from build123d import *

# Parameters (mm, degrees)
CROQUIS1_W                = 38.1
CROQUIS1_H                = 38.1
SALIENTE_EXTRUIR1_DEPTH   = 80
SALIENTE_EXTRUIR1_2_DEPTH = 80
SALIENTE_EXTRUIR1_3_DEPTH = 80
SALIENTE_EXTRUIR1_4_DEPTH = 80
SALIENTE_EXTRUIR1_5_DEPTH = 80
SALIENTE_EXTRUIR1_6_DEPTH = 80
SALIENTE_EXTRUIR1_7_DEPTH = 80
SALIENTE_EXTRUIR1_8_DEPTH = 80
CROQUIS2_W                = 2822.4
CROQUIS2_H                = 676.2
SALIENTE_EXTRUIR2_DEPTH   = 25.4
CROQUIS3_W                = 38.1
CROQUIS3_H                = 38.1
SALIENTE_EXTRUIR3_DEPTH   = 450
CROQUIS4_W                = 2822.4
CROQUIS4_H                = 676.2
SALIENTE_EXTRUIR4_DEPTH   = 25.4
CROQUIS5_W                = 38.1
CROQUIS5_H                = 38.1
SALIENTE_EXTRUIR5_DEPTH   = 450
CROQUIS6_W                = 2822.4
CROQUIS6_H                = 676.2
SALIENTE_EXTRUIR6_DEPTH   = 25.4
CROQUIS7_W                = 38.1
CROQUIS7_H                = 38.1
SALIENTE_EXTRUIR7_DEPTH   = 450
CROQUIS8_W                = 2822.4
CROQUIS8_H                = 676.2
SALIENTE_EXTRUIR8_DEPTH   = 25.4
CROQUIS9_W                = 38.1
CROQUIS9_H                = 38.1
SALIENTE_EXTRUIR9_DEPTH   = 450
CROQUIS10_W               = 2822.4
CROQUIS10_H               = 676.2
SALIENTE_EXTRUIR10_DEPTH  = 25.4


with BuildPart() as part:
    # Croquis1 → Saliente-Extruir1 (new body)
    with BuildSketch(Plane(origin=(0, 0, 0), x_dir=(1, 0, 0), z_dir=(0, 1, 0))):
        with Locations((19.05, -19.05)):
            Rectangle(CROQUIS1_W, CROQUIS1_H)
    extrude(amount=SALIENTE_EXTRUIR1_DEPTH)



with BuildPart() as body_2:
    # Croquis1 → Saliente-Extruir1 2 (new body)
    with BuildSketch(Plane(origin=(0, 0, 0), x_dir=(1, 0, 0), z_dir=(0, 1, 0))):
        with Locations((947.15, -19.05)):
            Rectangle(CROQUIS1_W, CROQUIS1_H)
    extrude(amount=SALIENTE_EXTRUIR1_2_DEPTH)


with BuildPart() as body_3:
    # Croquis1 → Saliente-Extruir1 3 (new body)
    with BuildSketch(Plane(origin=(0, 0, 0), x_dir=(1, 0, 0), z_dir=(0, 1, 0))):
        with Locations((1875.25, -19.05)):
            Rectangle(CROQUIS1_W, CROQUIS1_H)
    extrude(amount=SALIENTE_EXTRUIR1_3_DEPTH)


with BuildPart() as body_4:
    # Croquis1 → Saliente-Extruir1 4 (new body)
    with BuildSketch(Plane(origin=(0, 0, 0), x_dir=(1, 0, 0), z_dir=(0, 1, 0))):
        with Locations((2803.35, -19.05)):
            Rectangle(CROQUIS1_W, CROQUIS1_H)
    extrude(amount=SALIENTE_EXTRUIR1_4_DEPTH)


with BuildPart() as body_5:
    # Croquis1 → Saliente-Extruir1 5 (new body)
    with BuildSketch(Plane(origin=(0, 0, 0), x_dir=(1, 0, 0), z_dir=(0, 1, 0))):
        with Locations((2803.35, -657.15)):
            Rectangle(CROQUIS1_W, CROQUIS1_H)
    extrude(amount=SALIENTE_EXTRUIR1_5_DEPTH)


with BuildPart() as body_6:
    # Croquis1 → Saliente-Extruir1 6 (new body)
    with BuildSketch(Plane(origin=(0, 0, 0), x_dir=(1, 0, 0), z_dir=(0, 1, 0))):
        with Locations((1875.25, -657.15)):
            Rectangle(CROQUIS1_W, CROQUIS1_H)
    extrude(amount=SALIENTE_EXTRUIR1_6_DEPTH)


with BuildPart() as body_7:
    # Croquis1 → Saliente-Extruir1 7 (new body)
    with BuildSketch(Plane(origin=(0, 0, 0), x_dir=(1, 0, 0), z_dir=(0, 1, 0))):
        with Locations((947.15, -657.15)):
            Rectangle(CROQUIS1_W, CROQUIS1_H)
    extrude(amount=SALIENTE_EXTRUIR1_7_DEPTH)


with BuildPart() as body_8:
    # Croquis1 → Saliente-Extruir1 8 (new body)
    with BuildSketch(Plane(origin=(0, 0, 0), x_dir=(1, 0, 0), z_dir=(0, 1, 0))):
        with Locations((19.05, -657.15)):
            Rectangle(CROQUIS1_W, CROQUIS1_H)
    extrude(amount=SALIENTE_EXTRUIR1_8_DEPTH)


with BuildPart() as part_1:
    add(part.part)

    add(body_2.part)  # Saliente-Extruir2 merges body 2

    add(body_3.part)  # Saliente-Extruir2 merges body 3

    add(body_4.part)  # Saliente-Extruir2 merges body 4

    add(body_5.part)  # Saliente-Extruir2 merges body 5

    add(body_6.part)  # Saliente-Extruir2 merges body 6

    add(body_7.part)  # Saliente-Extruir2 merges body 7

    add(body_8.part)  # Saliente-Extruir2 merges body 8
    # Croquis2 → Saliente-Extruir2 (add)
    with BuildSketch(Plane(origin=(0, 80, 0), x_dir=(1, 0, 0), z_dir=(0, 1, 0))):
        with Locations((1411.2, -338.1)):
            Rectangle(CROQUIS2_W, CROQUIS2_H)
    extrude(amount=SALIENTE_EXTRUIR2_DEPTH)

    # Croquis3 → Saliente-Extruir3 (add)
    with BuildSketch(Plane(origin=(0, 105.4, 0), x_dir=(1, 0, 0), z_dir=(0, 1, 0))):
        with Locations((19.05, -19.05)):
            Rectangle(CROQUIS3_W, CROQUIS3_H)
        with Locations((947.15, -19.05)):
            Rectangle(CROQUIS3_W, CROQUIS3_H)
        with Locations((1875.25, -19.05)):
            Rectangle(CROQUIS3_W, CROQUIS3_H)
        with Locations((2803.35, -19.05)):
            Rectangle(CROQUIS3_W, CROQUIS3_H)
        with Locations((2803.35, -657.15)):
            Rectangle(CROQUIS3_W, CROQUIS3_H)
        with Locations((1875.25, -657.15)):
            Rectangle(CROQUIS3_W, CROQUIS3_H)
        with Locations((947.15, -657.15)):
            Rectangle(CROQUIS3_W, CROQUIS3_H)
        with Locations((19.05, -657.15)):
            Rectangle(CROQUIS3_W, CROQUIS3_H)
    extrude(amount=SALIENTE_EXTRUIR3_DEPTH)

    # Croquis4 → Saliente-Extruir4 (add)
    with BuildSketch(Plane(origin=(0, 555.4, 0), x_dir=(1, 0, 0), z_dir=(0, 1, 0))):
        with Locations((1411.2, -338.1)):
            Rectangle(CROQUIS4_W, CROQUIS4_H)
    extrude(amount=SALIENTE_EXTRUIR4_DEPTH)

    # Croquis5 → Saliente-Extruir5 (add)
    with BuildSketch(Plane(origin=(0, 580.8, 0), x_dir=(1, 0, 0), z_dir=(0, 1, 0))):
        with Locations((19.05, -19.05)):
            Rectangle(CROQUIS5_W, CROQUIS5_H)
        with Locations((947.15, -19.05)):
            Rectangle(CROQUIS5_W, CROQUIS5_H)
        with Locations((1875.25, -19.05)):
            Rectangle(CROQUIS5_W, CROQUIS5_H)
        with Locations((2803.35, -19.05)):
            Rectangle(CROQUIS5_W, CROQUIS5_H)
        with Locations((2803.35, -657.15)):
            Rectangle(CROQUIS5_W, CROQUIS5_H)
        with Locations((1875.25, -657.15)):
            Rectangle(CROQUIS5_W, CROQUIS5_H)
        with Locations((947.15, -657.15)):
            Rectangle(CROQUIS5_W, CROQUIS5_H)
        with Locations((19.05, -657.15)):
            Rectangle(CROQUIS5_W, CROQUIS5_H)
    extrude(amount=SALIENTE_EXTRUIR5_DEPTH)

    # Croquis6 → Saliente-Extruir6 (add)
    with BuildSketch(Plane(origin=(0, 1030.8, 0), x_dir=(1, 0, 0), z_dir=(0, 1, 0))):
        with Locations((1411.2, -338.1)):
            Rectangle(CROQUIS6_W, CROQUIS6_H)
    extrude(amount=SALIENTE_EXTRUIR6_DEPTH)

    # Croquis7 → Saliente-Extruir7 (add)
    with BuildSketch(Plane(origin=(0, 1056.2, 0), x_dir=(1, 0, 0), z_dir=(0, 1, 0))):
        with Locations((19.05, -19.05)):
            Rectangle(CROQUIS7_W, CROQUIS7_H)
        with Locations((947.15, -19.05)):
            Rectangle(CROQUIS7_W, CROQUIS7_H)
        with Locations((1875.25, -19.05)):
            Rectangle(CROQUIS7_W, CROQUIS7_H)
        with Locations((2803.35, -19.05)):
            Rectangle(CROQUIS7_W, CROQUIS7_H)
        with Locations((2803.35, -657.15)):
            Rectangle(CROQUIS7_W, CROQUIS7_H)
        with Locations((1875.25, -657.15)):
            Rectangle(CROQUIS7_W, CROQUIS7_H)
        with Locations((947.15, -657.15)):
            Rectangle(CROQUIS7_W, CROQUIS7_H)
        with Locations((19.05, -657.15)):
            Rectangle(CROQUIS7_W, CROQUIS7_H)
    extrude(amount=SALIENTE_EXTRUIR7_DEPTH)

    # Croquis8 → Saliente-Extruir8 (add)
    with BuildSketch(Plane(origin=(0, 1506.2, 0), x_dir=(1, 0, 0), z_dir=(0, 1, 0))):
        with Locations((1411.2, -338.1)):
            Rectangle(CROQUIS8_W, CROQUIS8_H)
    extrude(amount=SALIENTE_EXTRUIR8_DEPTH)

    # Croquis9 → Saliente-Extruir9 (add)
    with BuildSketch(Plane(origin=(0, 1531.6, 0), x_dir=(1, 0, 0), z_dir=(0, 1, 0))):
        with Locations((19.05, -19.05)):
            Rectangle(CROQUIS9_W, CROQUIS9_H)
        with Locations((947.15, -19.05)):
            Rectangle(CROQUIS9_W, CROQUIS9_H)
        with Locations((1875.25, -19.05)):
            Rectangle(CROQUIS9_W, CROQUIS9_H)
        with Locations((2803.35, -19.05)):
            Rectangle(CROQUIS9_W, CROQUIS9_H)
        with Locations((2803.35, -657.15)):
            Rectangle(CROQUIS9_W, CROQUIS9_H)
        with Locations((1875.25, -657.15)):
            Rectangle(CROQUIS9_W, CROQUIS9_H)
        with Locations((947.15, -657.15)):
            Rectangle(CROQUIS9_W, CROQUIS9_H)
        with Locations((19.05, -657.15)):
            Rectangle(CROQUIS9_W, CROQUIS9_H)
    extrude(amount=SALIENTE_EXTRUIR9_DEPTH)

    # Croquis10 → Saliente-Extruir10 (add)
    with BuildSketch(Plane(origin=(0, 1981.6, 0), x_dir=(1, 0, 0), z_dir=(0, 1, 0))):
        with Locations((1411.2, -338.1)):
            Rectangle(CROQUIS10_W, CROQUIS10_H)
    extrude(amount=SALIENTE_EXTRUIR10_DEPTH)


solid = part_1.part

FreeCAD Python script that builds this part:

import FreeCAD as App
import Part
import Sketcher

V = App.Vector


def add_polygon(sketch, points):
    """Adds a closed chain of lines whose ends are joined by coincident constraints."""
    first, n = sketch.GeometryCount, len(points)
    for a, b in zip(points, points[1:] + points[:1]):
        sketch.addGeometry(Part.LineSegment(App.Vector(*a, 0), App.Vector(*b, 0)), False)
    for i in range(n):
        sketch.addConstraint(Sketcher.Constraint("Coincident", first + i, 2, first + (i + 1) % n, 1))

doc = App.newDocument("Part")
body = doc.addObject("PartDesign::Body", "Body")

# Sketch on XZ plane
sketch1 = body.newObject("Sketcher::SketchObject", "Sketch")
sketch1.AttachmentSupport = (doc.getObject("XZ_Plane"), [""])
sketch1.MapMode = "FlatFace"
add_polygon(sketch1, [(0, 0), (0, 38), (38, 38), (38, 0)])  # lines 0-3
sketch1.addConstraint(Sketcher.Constraint("Vertical", 0))
sketch1.addConstraint(Sketcher.Constraint("Horizontal", 1))
sketch1.addConstraint(Sketcher.Constraint("Vertical", 2))
sketch1.addConstraint(Sketcher.Constraint("Horizontal", 3))
sketch1.addConstraint(Sketcher.Constraint("Coincident", 3, 2, -1, 1))
sketch1.addConstraint(Sketcher.Constraint("Equal", 3, 0))
sketch1.addConstraint(Sketcher.Constraint("DistanceX", 1, 1, 1, 2, 38.1))
pad1 = body.newObject("PartDesign::Pad", "Pad")
pad1.Profile = sketch1
pad1.Length = 80
pad1.Reversed = True
body2 = doc.addObject("PartDesign::Body", "Body001")

# Sketch on XZ plane
sketch2 = body2.newObject("Sketcher::SketchObject", "Sketch001")
sketch2.AttachmentSupport = (doc.getObject("XZ_Plane001"), [""])
sketch2.MapMode = "FlatFace"
add_polygon(sketch2, [(928, 0), (928, 38), (966, 38), (966, 0)])  # lines 0-3
sketch2.addConstraint(Sketcher.Constraint("Vertical", 0))
sketch2.addConstraint(Sketcher.Constraint("Horizontal", 1))
sketch2.addConstraint(Sketcher.Constraint("Vertical", 2))
sketch2.addConstraint(Sketcher.Constraint("Horizontal", 3))
sketch2.addConstraint(Sketcher.Constraint("PointOnObject", 2, 2, -1))
sketch2.addConstraint(Sketcher.Constraint("Equal", 3, 0))
sketch2.addConstraint(Sketcher.Constraint("DistanceX", 1, 1, 1, 2, 38.1))
sketch2.addConstraint(Sketcher.Constraint("DistanceX", -1, 1, 0, 2, 928.1))
pad2 = body2.newObject("PartDesign::Pad", "Pad001")
pad2.Profile = sketch2
pad2.Length = 80
pad2.Reversed = True
body3 = doc.addObject("PartDesign::Body", "Body002")

# Sketch on XZ plane
sketch3 = body3.newObject("Sketcher::SketchObject", "Sketch002")
sketch3.AttachmentSupport = (doc.getObject("XZ_Plane002"), [""])
sketch3.MapMode = "FlatFace"
add_polygon(sketch3, [(1856, 0), (1856, 38), (1894, 38), (1894, 0)])  # lines 0-3
sketch3.addConstraint(Sketcher.Constraint("Vertical", 0))
sketch3.addConstraint(Sketcher.Constraint("Horizontal", 1))
sketch3.addConstraint(Sketcher.Constraint("Vertical", 2))
sketch3.addConstraint(Sketcher.Constraint("Horizontal", 3))
sketch3.addConstraint(Sketcher.Constraint("PointOnObject", 2, 2, -1))
sketch3.addConstraint(Sketcher.Constraint("Equal", 3, 0))
sketch3.addConstraint(Sketcher.Constraint("DistanceX", 1, 1, 1, 2, 38.1))
sketch3.addConstraint(Sketcher.Constraint("DistanceX", -1, 1, 0, 2, 1856.2))
pad3 = body3.newObject("PartDesign::Pad", "Pad002")
pad3.Profile = sketch3
pad3.Length = 80
pad3.Reversed = True
body4 = doc.addObject("PartDesign::Body", "Body003")

# Sketch on XZ plane
sketch4 = body4.newObject("Sketcher::SketchObject", "Sketch003")
sketch4.AttachmentSupport = (doc.getObject("XZ_Plane003"), [""])
sketch4.MapMode = "FlatFace"
add_polygon(sketch4, [(2784, 0), (2784, 38), (2822, 38), (2822, 0)])  # lines 0-3
sketch4.addConstraint(Sketcher.Constraint("Vertical", 0))
sketch4.addConstraint(Sketcher.Constraint("Horizontal", 1))
sketch4.addConstraint(Sketcher.Constraint("Vertical", 2))
sketch4.addConstraint(Sketcher.Constraint("Horizontal", 3))
sketch4.addConstraint(Sketcher.Constraint("PointOnObject", 2, 2, -1))
sketch4.addConstraint(Sketcher.Constraint("Equal", 3, 0))
sketch4.addConstraint(Sketcher.Constraint("DistanceX", 1, 1, 1, 2, 38.1))
sketch4.addConstraint(Sketcher.Constraint("DistanceX", -1, 1, 0, 2, 2784.3))
pad4 = body4.newObject("PartDesign::Pad", "Pad003")
pad4.Profile = sketch4
pad4.Length = 80
pad4.Reversed = True
body5 = doc.addObject("PartDesign::Body", "Body004")

# Sketch on XZ plane
sketch5 = body5.newObject("Sketcher::SketchObject", "Sketch004")
sketch5.AttachmentSupport = (doc.getObject("XZ_Plane004"), [""])
sketch5.MapMode = "FlatFace"
add_polygon(sketch5, [(2784, 638), (2784, 676), (2822, 676), (2822, 638)])  # lines 0-3
sketch5.addConstraint(Sketcher.Constraint("Vertical", 0))
sketch5.addConstraint(Sketcher.Constraint("Horizontal", 1))
sketch5.addConstraint(Sketcher.Constraint("Vertical", 2))
sketch5.addConstraint(Sketcher.Constraint("Horizontal", 3))
sketch5.addConstraint(Sketcher.Constraint("Equal", 3, 0))
sketch5.addConstraint(Sketcher.Constraint("DistanceX", 1, 1, 1, 2, 38.1))
sketch5.addConstraint(Sketcher.Constraint("DistanceX", -1, 1, 0, 2, 2784.3))
sketch5.addConstraint(Sketcher.Constraint("DistanceY", -1, 1, 0, 2, 676.2))
pad5 = body5.newObject("PartDesign::Pad", "Pad004")
pad5.Profile = sketch5
pad5.Length = 80
pad5.Reversed = True
body6 = doc.addObject("PartDesign::Body", "Body005")

# Sketch on XZ plane
sketch6 = body6.newObject("Sketcher::SketchObject", "Sketch005")
sketch6.AttachmentSupport = (doc.getObject("XZ_Plane005"), [""])
sketch6.MapMode = "FlatFace"
add_polygon(sketch6, [(1856, 638), (1856, 676), (1894, 676), (1894, 638)])  # lines 0-3
sketch6.addConstraint(Sketcher.Constraint("Vertical", 0))
sketch6.addConstraint(Sketcher.Constraint("Horizontal", 1))
sketch6.addConstraint(Sketcher.Constraint("Vertical", 2))
sketch6.addConstraint(Sketcher.Constraint("Horizontal", 3))
sketch6.addConstraint(Sketcher.Constraint("Equal", 3, 0))
sketch6.addConstraint(Sketcher.Constraint("DistanceX", 1, 1, 1, 2, 38.1))
sketch6.addConstraint(Sketcher.Constraint("DistanceX", -1, 1, 0, 2, 1856.2))
sketch6.addConstraint(Sketcher.Constraint("DistanceY", -1, 1, 0, 2, 676.2))
pad6 = body6.newObject("PartDesign::Pad", "Pad005")
pad6.Profile = sketch6
pad6.Length = 80
pad6.Reversed = True
body7 = doc.addObject("PartDesign::Body", "Body006")

# Sketch on XZ plane
sketch7 = body7.newObject("Sketcher::SketchObject", "Sketch006")
sketch7.AttachmentSupport = (doc.getObject("XZ_Plane006"), [""])
sketch7.MapMode = "FlatFace"
add_polygon(sketch7, [(928, 638), (928, 676), (966, 676), (966, 638)])  # lines 0-3
sketch7.addConstraint(Sketcher.Constraint("Vertical", 0))
sketch7.addConstraint(Sketcher.Constraint("Horizontal", 1))
sketch7.addConstraint(Sketcher.Constraint("Vertical", 2))
sketch7.addConstraint(Sketcher.Constraint("Horizontal", 3))
sketch7.addConstraint(Sketcher.Constraint("Equal", 3, 0))
sketch7.addConstraint(Sketcher.Constraint("DistanceX", 1, 1, 1, 2, 38.1))
sketch7.addConstraint(Sketcher.Constraint("DistanceX", -1, 1, 0, 2, 928.1))
sketch7.addConstraint(Sketcher.Constraint("DistanceY", -1, 1, 0, 2, 676.2))
pad7 = body7.newObject("PartDesign::Pad", "Pad006")
pad7.Profile = sketch7
pad7.Length = 80
pad7.Reversed = True
body8 = doc.addObject("PartDesign::Body", "Body007")

# Sketch on XZ plane
sketch8 = body8.newObject("Sketcher::SketchObject", "Sketch007")
sketch8.AttachmentSupport = (doc.getObject("XZ_Plane007"), [""])
sketch8.MapMode = "FlatFace"
add_polygon(sketch8, [(0, 638), (0, 676), (38, 676), (38, 638)])  # lines 0-3
sketch8.addConstraint(Sketcher.Constraint("Vertical", 0))
sketch8.addConstraint(Sketcher.Constraint("Horizontal", 1))
sketch8.addConstraint(Sketcher.Constraint("Vertical", 2))
sketch8.addConstraint(Sketcher.Constraint("Horizontal", 3))
sketch8.addConstraint(Sketcher.Constraint("PointOnObject", 0, 2, -2))
sketch8.addConstraint(Sketcher.Constraint("Equal", 3, 0))
sketch8.addConstraint(Sketcher.Constraint("DistanceX", 1, 1, 1, 2, 38.1))
sketch8.addConstraint(Sketcher.Constraint("DistanceY", -1, 1, 0, 2, 676.2))
pad8 = body8.newObject("PartDesign::Pad", "Pad007")
pad8.Profile = sketch8
pad8.Length = 80
pad8.Reversed = True
body.AllowCompound = True
doc.recompute()

boolean = body.newObject("PartDesign::Boolean", "Boolean")
boolean.Type = "Fuse"
boolean.addObjects([body2])
doc.recompute()

boolean2 = body.newObject("PartDesign::Boolean", "Boolean001")
boolean2.Type = "Fuse"
boolean2.addObjects([body3])
doc.recompute()

boolean3 = body.newObject("PartDesign::Boolean", "Boolean002")
boolean3.Type = "Fuse"
boolean3.addObjects([body4])
doc.recompute()

boolean4 = body.newObject("PartDesign::Boolean", "Boolean003")
boolean4.Type = "Fuse"
boolean4.addObjects([body5])
doc.recompute()

boolean5 = body.newObject("PartDesign::Boolean", "Boolean004")
boolean5.Type = "Fuse"
boolean5.addObjects([body6])
doc.recompute()

boolean6 = body.newObject("PartDesign::Boolean", "Boolean005")
boolean6.Type = "Fuse"
boolean6.addObjects([body7])
doc.recompute()

boolean7 = body.newObject("PartDesign::Boolean", "Boolean006")
boolean7.Type = "Fuse"
boolean7.addObjects([body8])

# Sketch on XZ plane
sketch9 = body.newObject("Sketcher::SketchObject", "Sketch008")
sketch9.AttachmentSupport = (doc.getObject("XZ_Plane"), [""])
sketch9.MapMode = "FlatFace"
sketch9.AttachmentOffset = App.Placement(V(0, 0, -80), App.Rotation())
add_polygon(sketch9, [(0, 0), (0, 676), (2822, 676), (2822, 0)])  # lines 0-3
sketch9.addConstraint(Sketcher.Constraint("Vertical", 0))
sketch9.addConstraint(Sketcher.Constraint("Horizontal", 1))
sketch9.addConstraint(Sketcher.Constraint("Vertical", 2))
sketch9.addConstraint(Sketcher.Constraint("Horizontal", 3))
sketch9.addConstraint(Sketcher.Constraint("Coincident", 3, 2, -1, 1))
sketch9.addConstraint(Sketcher.Constraint("DistanceX", 1, 1, 1, 2, 2822.4))
sketch9.addConstraint(Sketcher.Constraint("DistanceY", 0, 1, 0, 2, 676.2))
pad9 = body.newObject("PartDesign::Pad", "Pad008")
pad9.Profile = sketch9
pad9.Length = 25.4
pad9.Reversed = True

# Sketch on XZ plane
sketch10 = body.newObject("Sketcher::SketchObject", "Sketch009")
sketch10.AttachmentSupport = (doc.getObject("XZ_Plane"), [""])
sketch10.MapMode = "FlatFace"
sketch10.AttachmentOffset = App.Placement(V(0, 0, -105.4), App.Rotation())
add_polygon(sketch10, [(0, 0), (0, 38), (38, 38), (38, 0)])  # lines 0-3
add_polygon(sketch10, [(928, 0), (928, 38), (966, 38), (966, 0)])  # lines 4-7
add_polygon(sketch10, [(1856, 0), (1856, 38), (1894, 38), (1894, 0)])  # lines 8-11
add_polygon(sketch10, [(2784, 0), (2784, 38), (2822, 38), (2822, 0)])  # lines 12-15
add_polygon(sketch10, [(2784, 638), (2784, 676), (2822, 676), (2822, 638)])  # lines 16-19
add_polygon(sketch10, [(1856, 638), (1856, 676), (1894, 676), (1894, 638)])  # lines 20-23
add_polygon(sketch10, [(928, 638), (928, 676), (966, 676), (966, 638)])  # lines 24-27
add_polygon(sketch10, [(0, 638), (0, 676), (38, 676), (38, 638)])  # lines 28-31
sketch10.addConstraint(Sketcher.Constraint("Vertical", 0))
sketch10.addConstraint(Sketcher.Constraint("Horizontal", 1))
sketch10.addConstraint(Sketcher.Constraint("Vertical", 2))
sketch10.addConstraint(Sketcher.Constraint("Horizontal", 3))
sketch10.addConstraint(Sketcher.Constraint("Vertical", 4))
sketch10.addConstraint(Sketcher.Constraint("Horizontal", 5))
sketch10.addConstraint(Sketcher.Constraint("Vertical", 6))
sketch10.addConstraint(Sketcher.Constraint("Horizontal", 7))
sketch10.addConstraint(Sketcher.Constraint("Vertical", 8))
sketch10.addConstraint(Sketcher.Constraint("Horizontal", 9))
sketch10.addConstraint(Sketcher.Constraint("Vertical", 10))
sketch10.addConstraint(Sketcher.Constraint("Horizontal", 11))
sketch10.addConstraint(Sketcher.Constraint("Vertical", 12))
sketch10.addConstraint(Sketcher.Constraint("Horizontal", 13))
sketch10.addConstraint(Sketcher.Constraint("Vertical", 14))
sketch10.addConstraint(Sketcher.Constraint("Horizontal", 15))
sketch10.addConstraint(Sketcher.Constraint("Vertical", 16))
sketch10.addConstraint(Sketcher.Constraint("Horizontal", 17))
sketch10.addConstraint(Sketcher.Constraint("Vertical", 18))
sketch10.addConstraint(Sketcher.Constraint("Horizontal", 19))
sketch10.addConstraint(Sketcher.Constraint("Vertical", 20))
sketch10.addConstraint(Sketcher.Constraint("Horizontal", 21))
sketch10.addConstraint(Sketcher.Constraint("Vertical", 22))
sketch10.addConstraint(Sketcher.Constraint("Horizontal", 23))
sketch10.addConstraint(Sketcher.Constraint("Vertical", 24))
sketch10.addConstraint(Sketcher.Constraint("Horizontal", 25))
sketch10.addConstraint(Sketcher.Constraint("Vertical", 26))
sketch10.addConstraint(Sketcher.Constraint("Horizontal", 27))
sketch10.addConstraint(Sketcher.Constraint("Vertical", 28))
sketch10.addConstraint(Sketcher.Constraint("Horizontal", 29))
sketch10.addConstraint(Sketcher.Constraint("Vertical", 30))
sketch10.addConstraint(Sketcher.Constraint("Horizontal", 31))
sketch10.addConstraint(Sketcher.Constraint("Coincident", 3, 2, -1, 1))
sketch10.addConstraint(Sketcher.Constraint("PointOnObject", 6, 2, -1))
sketch10.addConstraint(Sketcher.Constraint("PointOnObject", 10, 2, -1))
sketch10.addConstraint(Sketcher.Constraint("PointOnObject", 14, 2, -1))
sketch10.addConstraint(Sketcher.Constraint("PointOnObject", 28, 2, -2))
sketch10.addConstraint(Sketcher.Constraint("Horizontal", 1, 2, 4, 2))
sketch10.addConstraint(Sketcher.Constraint("Horizontal", 5, 2, 8, 2))
sketch10.addConstraint(Sketcher.Constraint("Horizontal", 9, 2, 12, 2))
sketch10.addConstraint(Sketcher.Constraint("Horizontal", 17, 2, 20, 2))
sketch10.addConstraint(Sketcher.Constraint("Horizontal", 19, 2, 22, 2))
sketch10.addConstraint(Sketcher.Constraint("Horizontal", 21, 2, 24, 2))
sketch10.addConstraint(Sketcher.Constraint("Horizontal", 23, 2, 26, 2))
sketch10.addConstraint(Sketcher.Constraint("Horizontal", 25, 2, 28, 2))
sketch10.addConstraint(Sketcher.Constraint("Horizontal", 27, 2, 30, 2))
sketch10.addConstraint(Sketcher.Constraint("Vertical", 15, 2, 16, 2))
sketch10.addConstraint(Sketcher.Constraint("Vertical", 14, 2, 17, 2))
sketch10.addConstraint(Sketcher.Constraint("Vertical", 11, 2, 20, 2))
sketch10.addConstraint(Sketcher.Constraint("Vertical", 10, 2, 21, 2))
sketch10.addConstraint(Sketcher.Constraint("Vertical", 7, 2, 24, 2))
sketch10.addConstraint(Sketcher.Constraint("Vertical", 6, 2, 25, 2))
sketch10.addConstraint(Sketcher.Constraint("Vertical", 2, 2, 29, 2))
sketch10.addConstraint(Sketcher.Constraint("Equal", 3, 5))
sketch10.addConstraint(Sketcher.Constraint("Equal", 7, 9))
sketch10.addConstraint(Sketcher.Constraint("Equal", 11, 13))
sketch10.addConstraint(Sketcher.Constraint("Equal", 31, 0))
sketch10.addConstraint(Sketcher.Constraint("Equal", 14, 16))
sketch10.addConstraint(Sketcher.Constraint("DistanceX", 1, 1, 1, 2, 38.1))
sketch10.addConstraint(Sketcher.Constraint("DistanceX", 1, 2, 4, 2, 890.0))
sketch10.addConstraint(Sketcher.Constraint("DistanceX", 5, 2, 8, 2, 890.0))
sketch10.addConstraint(Sketcher.Constraint("DistanceX", 9, 2, 12, 2, 890.0))
sketch10.addConstraint(Sketcher.Constraint("DistanceY", 13, 2, 18, 2, 600.0))
pad10 = body.newObject("PartDesign::Pad", "Pad009")
pad10.Profile = sketch10
pad10.Length = 450
pad10.Reversed = True

# Sketch on XZ plane
sketch11 = body.newObject("Sketcher::SketchObject", "Sketch010")
sketch11.AttachmentSupport = (doc.getObject("XZ_Plane"), [""])
sketch11.MapMode = "FlatFace"
sketch11.AttachmentOffset = App.Placement(V(0, 0, -555.4), App.Rotation())
add_polygon(sketch11, [(0, 0), (0, 676), (2822, 676), (2822, 0)])  # lines 0-3
sketch11.addConstraint(Sketcher.Constraint("Vertical", 0))
sketch11.addConstraint(Sketcher.Constraint("Horizontal", 1))
sketch11.addConstraint(Sketcher.Constraint("Vertical", 2))
sketch11.addConstraint(Sketcher.Constraint("Horizontal", 3))
sketch11.addConstraint(Sketcher.Constraint("Coincident", 3, 2, -1, 1))
sketch11.addConstraint(Sketcher.Constraint("DistanceX", 1, 1, 1, 2, 2822.4))
sketch11.addConstraint(Sketcher.Constraint("DistanceY", 0, 1, 0, 2, 676.2))
pad11 = body.newObject("PartDesign::Pad", "Pad010")
pad11.Profile = sketch11
pad11.Length = 25.4
pad11.Reversed = True

# Sketch on XZ plane
sketch12 = body.newObject("Sketcher::SketchObject", "Sketch011")
sketch12.AttachmentSupport = (doc.getObject("XZ_Plane"), [""])
sketch12.MapMode = "FlatFace"
sketch12.AttachmentOffset = App.Placement(V(0, 0, -580.8), App.Rotation())
add_polygon(sketch12, [(0, 0), (0, 38), (38, 38), (38, 0)])  # lines 0-3
add_polygon(sketch12, [(928, 0), (928, 38), (966, 38), (966, 0)])  # lines 4-7
add_polygon(sketch12, [(1856, 0), (1856, 38), (1894, 38), (1894, 0)])  # lines 8-11
add_polygon(sketch12, [(2784, 0), (2784, 38), (2822, 38), (2822, 0)])  # lines 12-15
add_polygon(sketch12, [(2784, 638), (2784, 676), (2822, 676), (2822, 638)])  # lines 16-19
add_polygon(sketch12, [(1856, 638), (1856, 676), (1894, 676), (1894, 638)])  # lines 20-23
add_polygon(sketch12, [(928, 638), (928, 676), (966, 676), (966, 638)])  # lines 24-27
add_polygon(sketch12, [(0, 638), (0, 676), (38, 676), (38, 638)])  # lines 28-31
sketch12.addConstraint(Sketcher.Constraint("Vertical", 0))
sketch12.addConstraint(Sketcher.Constraint("Horizontal", 1))
sketch12.addConstraint(Sketcher.Constraint("Vertical", 2))
sketch12.addConstraint(Sketcher.Constraint("Horizontal", 3))
sketch12.addConstraint(Sketcher.Constraint("Vertical", 4))
sketch12.addConstraint(Sketcher.Constraint("Horizontal", 5))
sketch12.addConstraint(Sketcher.Constraint("Vertical", 6))
sketch12.addConstraint(Sketcher.Constraint("Horizontal", 7))
sketch12.addConstraint(Sketcher.Constraint("Vertical", 8))
sketch12.addConstraint(Sketcher.Constraint("Horizontal", 9))
sketch12.addConstraint(Sketcher.Constraint("Vertical", 10))
sketch12.addConstraint(Sketcher.Constraint("Horizontal", 11))
sketch12.addConstraint(Sketcher.Constraint("Vertical", 12))
sketch12.addConstraint(Sketcher.Constraint("Horizontal", 13))
sketch12.addConstraint(Sketcher.Constraint("Vertical", 14))
sketch12.addConstraint(Sketcher.Constraint("Horizontal", 15))
sketch12.addConstraint(Sketcher.Constraint("Vertical", 16))
sketch12.addConstraint(Sketcher.Constraint("Horizontal", 17))
sketch12.addConstraint(Sketcher.Constraint("Vertical", 18))
sketch12.addConstraint(Sketcher.Constraint("Horizontal", 19))
sketch12.addConstraint(Sketcher.Constraint("Vertical", 20))
sketch12.addConstraint(Sketcher.Constraint("Horizontal", 21))
sketch12.addConstraint(Sketcher.Constraint("Vertical", 22))
sketch12.addConstraint(Sketcher.Constraint("Horizontal", 23))
sketch12.addConstraint(Sketcher.Constraint("Vertical", 24))
sketch12.addConstraint(Sketcher.Constraint("Horizontal", 25))
sketch12.addConstraint(Sketcher.Constraint("Vertical", 26))
sketch12.addConstraint(Sketcher.Constraint("Horizontal", 27))
sketch12.addConstraint(Sketcher.Constraint("Vertical", 28))
sketch12.addConstraint(Sketcher.Constraint("Horizontal", 29))
sketch12.addConstraint(Sketcher.Constraint("Vertical", 30))
sketch12.addConstraint(Sketcher.Constraint("Horizontal", 31))
sketch12.addConstraint(Sketcher.Constraint("Coincident", 3, 2, -1, 1))
sketch12.addConstraint(Sketcher.Constraint("PointOnObject", 6, 2, -1))
sketch12.addConstraint(Sketcher.Constraint("PointOnObject", 10, 2, -1))
sketch12.addConstraint(Sketcher.Constraint("PointOnObject", 14, 2, -1))
sketch12.addConstraint(Sketcher.Constraint("PointOnObject", 28, 2, -2))
sketch12.addConstraint(Sketcher.Constraint("Horizontal", 1, 2, 4, 2))
sketch12.addConstraint(Sketcher.Constraint("Horizontal", 5, 2, 8, 2))
sketch12.addConstraint(Sketcher.Constraint("Horizontal", 9, 2, 12, 2))
sketch12.addConstraint(Sketcher.Constraint("Horizontal", 17, 2, 20, 2))
sketch12.addConstraint(Sketcher.Constraint("Horizontal", 19, 2, 22, 2))
sketch12.addConstraint(Sketcher.Constraint("Horizontal", 21, 2, 24, 2))
sketch12.addConstraint(Sketcher.Constraint("Horizontal", 23, 2, 26, 2))
sketch12.addConstraint(Sketcher.Constraint("Horizontal", 25, 2, 28, 2))
sketch12.addConstraint(Sketcher.Constraint("Horizontal", 27, 2, 30, 2))
sketch12.addConstraint(Sketcher.Constraint("Vertical", 15, 2, 16, 2))
sketch12.addConstraint(Sketcher.Constraint("Vertical", 14, 2, 17, 2))
sketch12.addConstraint(Sketcher.Constraint("Vertical", 11, 2, 20, 2))
sketch12.addConstraint(Sketcher.Constraint("Vertical", 10, 2, 21, 2))
sketch12.addConstraint(Sketcher.Constraint("Vertical", 7, 2, 24, 2))
sketch12.addConstraint(Sketcher.Constraint("Vertical", 6, 2, 25, 2))
sketch12.addConstraint(Sketcher.Constraint("Vertical", 2, 2, 29, 2))
sketch12.addConstraint(Sketcher.Constraint("Equal", 3, 5))
sketch12.addConstraint(Sketcher.Constraint("Equal", 7, 9))
sketch12.addConstraint(Sketcher.Constraint("Equal", 11, 13))
sketch12.addConstraint(Sketcher.Constraint("Equal", 31, 0))
sketch12.addConstraint(Sketcher.Constraint("Equal", 14, 16))
sketch12.addConstraint(Sketcher.Constraint("DistanceX", 1, 1, 1, 2, 38.1))
sketch12.addConstraint(Sketcher.Constraint("DistanceX", 1, 2, 4, 2, 890.0))
sketch12.addConstraint(Sketcher.Constraint("DistanceX", 5, 2, 8, 2, 890.0))
sketch12.addConstraint(Sketcher.Constraint("DistanceX", 9, 2, 12, 2, 890.0))
sketch12.addConstraint(Sketcher.Constraint("DistanceY", 13, 2, 18, 2, 600.0))
pad12 = body.newObject("PartDesign::Pad", "Pad011")
pad12.Profile = sketch12
pad12.Length = 450
pad12.Reversed = True

# Sketch on XZ plane
sketch13 = body.newObject("Sketcher::SketchObject", "Sketch012")
sketch13.AttachmentSupport = (doc.getObject("XZ_Plane"), [""])
sketch13.MapMode = "FlatFace"
sketch13.AttachmentOffset = App.Placement(V(0, 0, -1030.8), App.Rotation())
add_polygon(sketch13, [(0, 0), (0, 676), (2822, 676), (2822, 0)])  # lines 0-3
sketch13.addConstraint(Sketcher.Constraint("Vertical", 0))
sketch13.addConstraint(Sketcher.Constraint("Horizontal", 1))
sketch13.addConstraint(Sketcher.Constraint("Vertical", 2))
sketch13.addConstraint(Sketcher.Constraint("Horizontal", 3))
sketch13.addConstraint(Sketcher.Constraint("Coincident", 3, 2, -1, 1))
sketch13.addConstraint(Sketcher.Constraint("DistanceX", 1, 1, 1, 2, 2822.4))
sketch13.addConstraint(Sketcher.Constraint("DistanceY", 0, 1, 0, 2, 676.2))
pad13 = body.newObject("PartDesign::Pad", "Pad012")
pad13.Profile = sketch13
pad13.Length = 25.4
pad13.Reversed = True

# Sketch on XZ plane
sketch14 = body.newObject("Sketcher::SketchObject", "Sketch013")
sketch14.AttachmentSupport = (doc.getObject("XZ_Plane"), [""])
sketch14.MapMode = "FlatFace"
sketch14.AttachmentOffset = App.Placement(V(0, 0, -1056.2), App.Rotation())
add_polygon(sketch14, [(0, 0), (0, 38), (38, 38), (38, 0)])  # lines 0-3
add_polygon(sketch14, [(928, 0), (928, 38), (966, 38), (966, 0)])  # lines 4-7
add_polygon(sketch14, [(1856, 0), (1856, 38), (1894, 38), (1894, 0)])  # lines 8-11
add_polygon(sketch14, [(2784, 0), (2784, 38), (2822, 38), (2822, 0)])  # lines 12-15
add_polygon(sketch14, [(2784, 638), (2784, 676), (2822, 676), (2822, 638)])  # lines 16-19
add_polygon(sketch14, [(1856, 638), (1856, 676), (1894, 676), (1894, 638)])  # lines 20-23
add_polygon(sketch14, [(928, 638), (928, 676), (966, 676), (966, 638)])  # lines 24-27
add_polygon(sketch14, [(0, 638), (0, 676), (38, 676), (38, 638)])  # lines 28-31
sketch14.addConstraint(Sketcher.Constraint("Vertical", 0))
sketch14.addConstraint(Sketcher.Constraint("Horizontal", 1))
sketch14.addConstraint(Sketcher.Constraint("Vertical", 2))
sketch14.addConstraint(Sketcher.Constraint("Horizontal", 3))
sketch14.addConstraint(Sketcher.Constraint("Vertical", 4))
sketch14.addConstraint(Sketcher.Constraint("Horizontal", 5))
sketch14.addConstraint(Sketcher.Constraint("Vertical", 6))
sketch14.addConstraint(Sketcher.Constraint("Horizontal", 7))
sketch14.addConstraint(Sketcher.Constraint("Vertical", 8))
sketch14.addConstraint(Sketcher.Constraint("Horizontal", 9))
sketch14.addConstraint(Sketcher.Constraint("Vertical", 10))
sketch14.addConstraint(Sketcher.Constraint("Horizontal", 11))
sketch14.addConstraint(Sketcher.Constraint("Vertical", 12))
sketch14.addConstraint(Sketcher.Constraint("Horizontal", 13))
sketch14.addConstraint(Sketcher.Constraint("Vertical", 14))
sketch14.addConstraint(Sketcher.Constraint("Horizontal", 15))
sketch14.addConstraint(Sketcher.Constraint("Vertical", 16))
sketch14.addConstraint(Sketcher.Constraint("Horizontal", 17))
sketch14.addConstraint(Sketcher.Constraint("Vertical", 18))
sketch14.addConstraint(Sketcher.Constraint("Horizontal", 19))
sketch14.addConstraint(Sketcher.Constraint("Vertical", 20))
sketch14.addConstraint(Sketcher.Constraint("Horizontal", 21))
sketch14.addConstraint(Sketcher.Constraint("Vertical", 22))
sketch14.addConstraint(Sketcher.Constraint("Horizontal", 23))
sketch14.addConstraint(Sketcher.Constraint("Vertical", 24))
sketch14.addConstraint(Sketcher.Constraint("Horizontal", 25))
sketch14.addConstraint(Sketcher.Constraint("Vertical", 26))
sketch14.addConstraint(Sketcher.Constraint("Horizontal", 27))
sketch14.addConstraint(Sketcher.Constraint("Vertical", 28))
sketch14.addConstraint(Sketcher.Constraint("Horizontal", 29))
sketch14.addConstraint(Sketcher.Constraint("Vertical", 30))
sketch14.addConstraint(Sketcher.Constraint("Horizontal", 31))
sketch14.addConstraint(Sketcher.Constraint("Coincident", 3, 2, -1, 1))
sketch14.addConstraint(Sketcher.Constraint("PointOnObject", 6, 2, -1))
sketch14.addConstraint(Sketcher.Constraint("PointOnObject", 10, 2, -1))
sketch14.addConstraint(Sketcher.Constraint("PointOnObject", 14, 2, -1))
sketch14.addConstraint(Sketcher.Constraint("PointOnObject", 28, 2, -2))
sketch14.addConstraint(Sketcher.Constraint("Horizontal", 1, 2, 4, 2))
sketch14.addConstraint(Sketcher.Constraint("Horizontal", 5, 2, 8, 2))
sketch14.addConstraint(Sketcher.Constraint("Horizontal", 9, 2, 12, 2))
sketch14.addConstraint(Sketcher.Constraint("Horizontal", 17, 2, 20, 2))
sketch14.addConstraint(Sketcher.Constraint("Horizontal", 19, 2, 22, 2))
sketch14.addConstraint(Sketcher.Constraint("Horizontal", 21, 2, 24, 2))
sketch14.addConstraint(Sketcher.Constraint("Horizontal", 23, 2, 26, 2))
sketch14.addConstraint(Sketcher.Constraint("Horizontal", 25, 2, 28, 2))
sketch14.addConstraint(Sketcher.Constraint("Horizontal", 27, 2, 30, 2))
sketch14.addConstraint(Sketcher.Constraint("Vertical", 15, 2, 16, 2))
sketch14.addConstraint(Sketcher.Constraint("Vertical", 14, 2, 17, 2))
sketch14.addConstraint(Sketcher.Constraint("Vertical", 11, 2, 20, 2))
sketch14.addConstraint(Sketcher.Constraint("Vertical", 10, 2, 21, 2))
sketch14.addConstraint(Sketcher.Constraint("Vertical", 7, 2, 24, 2))
sketch14.addConstraint(Sketcher.Constraint("Vertical", 6, 2, 25, 2))
sketch14.addConstraint(Sketcher.Constraint("Vertical", 2, 2, 29, 2))
sketch14.addConstraint(Sketcher.Constraint("Equal", 3, 5))
sketch14.addConstraint(Sketcher.Constraint("Equal", 7, 9))
sketch14.addConstraint(Sketcher.Constraint("Equal", 11, 13))
sketch14.addConstraint(Sketcher.Constraint("Equal", 31, 0))
sketch14.addConstraint(Sketcher.Constraint("Equal", 14, 16))
sketch14.addConstraint(Sketcher.Constraint("DistanceX", 1, 1, 1, 2, 38.1))
sketch14.addConstraint(Sketcher.Constraint("DistanceX", 1, 2, 4, 2, 890.0))
sketch14.addConstraint(Sketcher.Constraint("DistanceX", 5, 2, 8, 2, 890.0))
sketch14.addConstraint(Sketcher.Constraint("DistanceX", 9, 2, 12, 2, 890.0))
sketch14.addConstraint(Sketcher.Constraint("DistanceY", 13, 2, 18, 2, 600.0))
pad14 = body.newObject("PartDesign::Pad", "Pad013")
pad14.Profile = sketch14
pad14.Length = 450
pad14.Reversed = True

# Sketch on XZ plane
sketch15 = body.newObject("Sketcher::SketchObject", "Sketch014")
sketch15.AttachmentSupport = (doc.getObject("XZ_Plane"), [""])
sketch15.MapMode = "FlatFace"
sketch15.AttachmentOffset = App.Placement(V(0, 0, -1506.2), App.Rotation())
add_polygon(sketch15, [(0, 0), (0, 676), (2822, 676), (2822, 0)])  # lines 0-3
sketch15.addConstraint(Sketcher.Constraint("Vertical", 0))
sketch15.addConstraint(Sketcher.Constraint("Horizontal", 1))
sketch15.addConstraint(Sketcher.Constraint("Vertical", 2))
sketch15.addConstraint(Sketcher.Constraint("Horizontal", 3))
sketch15.addConstraint(Sketcher.Constraint("Coincident", 3, 2, -1, 1))
sketch15.addConstraint(Sketcher.Constraint("DistanceX", 1, 1, 1, 2, 2822.4))
sketch15.addConstraint(Sketcher.Constraint("DistanceY", 0, 1, 0, 2, 676.2))
pad15 = body.newObject("PartDesign::Pad", "Pad014")
pad15.Profile = sketch15
pad15.Length = 25.4
pad15.Reversed = True

# Sketch on XZ plane
sketch16 = body.newObject("Sketcher::SketchObject", "Sketch015")
sketch16.AttachmentSupport = (doc.getObject("XZ_Plane"), [""])
sketch16.MapMode = "FlatFace"
sketch16.AttachmentOffset = App.Placement(V(0, 0, -1531.6), App.Rotation())
add_polygon(sketch16, [(0, 0), (0, 38), (38, 38), (38, 0)])  # lines 0-3
add_polygon(sketch16, [(928, 0), (928, 38), (966, 38), (966, 0)])  # lines 4-7
add_polygon(sketch16, [(1856, 0), (1856, 38), (1894, 38), (1894, 0)])  # lines 8-11
add_polygon(sketch16, [(2784, 0), (2784, 38), (2822, 38), (2822, 0)])  # lines 12-15
add_polygon(sketch16, [(2784, 638), (2784, 676), (2822, 676), (2822, 638)])  # lines 16-19
add_polygon(sketch16, [(1856, 638), (1856, 676), (1894, 676), (1894, 638)])  # lines 20-23
add_polygon(sketch16, [(928, 638), (928, 676), (966, 676), (966, 638)])  # lines 24-27
add_polygon(sketch16, [(0, 638), (0, 676), (38, 676), (38, 638)])  # lines 28-31
sketch16.addConstraint(Sketcher.Constraint("Vertical", 0))
sketch16.addConstraint(Sketcher.Constraint("Horizontal", 1))
sketch16.addConstraint(Sketcher.Constraint("Vertical", 2))
sketch16.addConstraint(Sketcher.Constraint("Horizontal", 3))
sketch16.addConstraint(Sketcher.Constraint("Vertical", 4))
sketch16.addConstraint(Sketcher.Constraint("Horizontal", 5))
sketch16.addConstraint(Sketcher.Constraint("Vertical", 6))
sketch16.addConstraint(Sketcher.Constraint("Horizontal", 7))
sketch16.addConstraint(Sketcher.Constraint("Vertical", 8))
sketch16.addConstraint(Sketcher.Constraint("Horizontal", 9))
sketch16.addConstraint(Sketcher.Constraint("Vertical", 10))
sketch16.addConstraint(Sketcher.Constraint("Horizontal", 11))
sketch16.addConstraint(Sketcher.Constraint("Vertical", 12))
sketch16.addConstraint(Sketcher.Constraint("Horizontal", 13))
sketch16.addConstraint(Sketcher.Constraint("Vertical", 14))
sketch16.addConstraint(Sketcher.Constraint("Horizontal", 15))
sketch16.addConstraint(Sketcher.Constraint("Vertical", 16))
sketch16.addConstraint(Sketcher.Constraint("Horizontal", 17))
sketch16.addConstraint(Sketcher.Constraint("Vertical", 18))
sketch16.addConstraint(Sketcher.Constraint("Horizontal", 19))
sketch16.addConstraint(Sketcher.Constraint("Vertical", 20))
sketch16.addConstraint(Sketcher.Constraint("Horizontal", 21))
sketch16.addConstraint(Sketcher.Constraint("Vertical", 22))
sketch16.addConstraint(Sketcher.Constraint("Horizontal", 23))
sketch16.addConstraint(Sketcher.Constraint("Vertical", 24))
sketch16.addConstraint(Sketcher.Constraint("Horizontal", 25))
sketch16.addConstraint(Sketcher.Constraint("Vertical", 26))
sketch16.addConstraint(Sketcher.Constraint("Horizontal", 27))
sketch16.addConstraint(Sketcher.Constraint("Vertical", 28))
sketch16.addConstraint(Sketcher.Constraint("Horizontal", 29))
sketch16.addConstraint(Sketcher.Constraint("Vertical", 30))
sketch16.addConstraint(Sketcher.Constraint("Horizontal", 31))
sketch16.addConstraint(Sketcher.Constraint("Coincident", 3, 2, -1, 1))
sketch16.addConstraint(Sketcher.Constraint("PointOnObject", 6, 2, -1))
sketch16.addConstraint(Sketcher.Constraint("PointOnObject", 10, 2, -1))
sketch16.addConstraint(Sketcher.Constraint("PointOnObject", 14, 2, -1))
sketch16.addConstraint(Sketcher.Constraint("PointOnObject", 28, 2, -2))
sketch16.addConstraint(Sketcher.Constraint("Horizontal", 1, 2, 4, 2))
sketch16.addConstraint(Sketcher.Constraint("Horizontal", 5, 2, 8, 2))
sketch16.addConstraint(Sketcher.Constraint("Horizontal", 9, 2, 12, 2))
sketch16.addConstraint(Sketcher.Constraint("Horizontal", 17, 2, 20, 2))
sketch16.addConstraint(Sketcher.Constraint("Horizontal", 19, 2, 22, 2))
sketch16.addConstraint(Sketcher.Constraint("Horizontal", 21, 2, 24, 2))
sketch16.addConstraint(Sketcher.Constraint("Horizontal", 23, 2, 26, 2))
sketch16.addConstraint(Sketcher.Constraint("Horizontal", 25, 2, 28, 2))
sketch16.addConstraint(Sketcher.Constraint("Horizontal", 27, 2, 30, 2))
sketch16.addConstraint(Sketcher.Constraint("Vertical", 15, 2, 16, 2))
sketch16.addConstraint(Sketcher.Constraint("Vertical", 14, 2, 17, 2))
sketch16.addConstraint(Sketcher.Constraint("Vertical", 11, 2, 20, 2))
sketch16.addConstraint(Sketcher.Constraint("Vertical", 10, 2, 21, 2))
sketch16.addConstraint(Sketcher.Constraint("Vertical", 7, 2, 24, 2))
sketch16.addConstraint(Sketcher.Constraint("Vertical", 6, 2, 25, 2))
sketch16.addConstraint(Sketcher.Constraint("Vertical", 2, 2, 29, 2))
sketch16.addConstraint(Sketcher.Constraint("Equal", 3, 5))
sketch16.addConstraint(Sketcher.Constraint("Equal", 7, 9))
sketch16.addConstraint(Sketcher.Constraint("Equal", 11, 13))
sketch16.addConstraint(Sketcher.Constraint("Equal", 31, 0))
sketch16.addConstraint(Sketcher.Constraint("Equal", 14, 16))
sketch16.addConstraint(Sketcher.Constraint("DistanceX", 1, 1, 1, 2, 38.1))
sketch16.addConstraint(Sketcher.Constraint("DistanceX", 1, 2, 4, 2, 890.0))
sketch16.addConstraint(Sketcher.Constraint("DistanceX", 5, 2, 8, 2, 890.0))
sketch16.addConstraint(Sketcher.Constraint("DistanceX", 9, 2, 12, 2, 890.0))
sketch16.addConstraint(Sketcher.Constraint("DistanceY", 13, 2, 18, 2, 600.0))
pad16 = body.newObject("PartDesign::Pad", "Pad015")
pad16.Profile = sketch16
pad16.Length = 450
pad16.Reversed = True

# Sketch on XZ plane
sketch17 = body.newObject("Sketcher::SketchObject", "Sketch016")
sketch17.AttachmentSupport = (doc.getObject("XZ_Plane"), [""])
sketch17.MapMode = "FlatFace"
sketch17.AttachmentOffset = App.Placement(V(0, 0, -1981.6), App.Rotation())
add_polygon(sketch17, [(0, 0), (0, 676), (2822, 676), (2822, 0)])  # lines 0-3
sketch17.addConstraint(Sketcher.Constraint("Vertical", 0))
sketch17.addConstraint(Sketcher.Constraint("Horizontal", 1))
sketch17.addConstraint(Sketcher.Constraint("Vertical", 2))
sketch17.addConstraint(Sketcher.Constraint("Horizontal", 3))
sketch17.addConstraint(Sketcher.Constraint("Coincident", 3, 2, -1, 1))
sketch17.addConstraint(Sketcher.Constraint("DistanceX", 1, 1, 1, 2, 2822.4))
sketch17.addConstraint(Sketcher.Constraint("DistanceY", 0, 1, 0, 2, 676.2))
pad17 = body.newObject("PartDesign::Pad", "Pad016")
pad17.Profile = sketch17
pad17.Length = 25.4
pad17.Reversed = True

doc.recompute()
